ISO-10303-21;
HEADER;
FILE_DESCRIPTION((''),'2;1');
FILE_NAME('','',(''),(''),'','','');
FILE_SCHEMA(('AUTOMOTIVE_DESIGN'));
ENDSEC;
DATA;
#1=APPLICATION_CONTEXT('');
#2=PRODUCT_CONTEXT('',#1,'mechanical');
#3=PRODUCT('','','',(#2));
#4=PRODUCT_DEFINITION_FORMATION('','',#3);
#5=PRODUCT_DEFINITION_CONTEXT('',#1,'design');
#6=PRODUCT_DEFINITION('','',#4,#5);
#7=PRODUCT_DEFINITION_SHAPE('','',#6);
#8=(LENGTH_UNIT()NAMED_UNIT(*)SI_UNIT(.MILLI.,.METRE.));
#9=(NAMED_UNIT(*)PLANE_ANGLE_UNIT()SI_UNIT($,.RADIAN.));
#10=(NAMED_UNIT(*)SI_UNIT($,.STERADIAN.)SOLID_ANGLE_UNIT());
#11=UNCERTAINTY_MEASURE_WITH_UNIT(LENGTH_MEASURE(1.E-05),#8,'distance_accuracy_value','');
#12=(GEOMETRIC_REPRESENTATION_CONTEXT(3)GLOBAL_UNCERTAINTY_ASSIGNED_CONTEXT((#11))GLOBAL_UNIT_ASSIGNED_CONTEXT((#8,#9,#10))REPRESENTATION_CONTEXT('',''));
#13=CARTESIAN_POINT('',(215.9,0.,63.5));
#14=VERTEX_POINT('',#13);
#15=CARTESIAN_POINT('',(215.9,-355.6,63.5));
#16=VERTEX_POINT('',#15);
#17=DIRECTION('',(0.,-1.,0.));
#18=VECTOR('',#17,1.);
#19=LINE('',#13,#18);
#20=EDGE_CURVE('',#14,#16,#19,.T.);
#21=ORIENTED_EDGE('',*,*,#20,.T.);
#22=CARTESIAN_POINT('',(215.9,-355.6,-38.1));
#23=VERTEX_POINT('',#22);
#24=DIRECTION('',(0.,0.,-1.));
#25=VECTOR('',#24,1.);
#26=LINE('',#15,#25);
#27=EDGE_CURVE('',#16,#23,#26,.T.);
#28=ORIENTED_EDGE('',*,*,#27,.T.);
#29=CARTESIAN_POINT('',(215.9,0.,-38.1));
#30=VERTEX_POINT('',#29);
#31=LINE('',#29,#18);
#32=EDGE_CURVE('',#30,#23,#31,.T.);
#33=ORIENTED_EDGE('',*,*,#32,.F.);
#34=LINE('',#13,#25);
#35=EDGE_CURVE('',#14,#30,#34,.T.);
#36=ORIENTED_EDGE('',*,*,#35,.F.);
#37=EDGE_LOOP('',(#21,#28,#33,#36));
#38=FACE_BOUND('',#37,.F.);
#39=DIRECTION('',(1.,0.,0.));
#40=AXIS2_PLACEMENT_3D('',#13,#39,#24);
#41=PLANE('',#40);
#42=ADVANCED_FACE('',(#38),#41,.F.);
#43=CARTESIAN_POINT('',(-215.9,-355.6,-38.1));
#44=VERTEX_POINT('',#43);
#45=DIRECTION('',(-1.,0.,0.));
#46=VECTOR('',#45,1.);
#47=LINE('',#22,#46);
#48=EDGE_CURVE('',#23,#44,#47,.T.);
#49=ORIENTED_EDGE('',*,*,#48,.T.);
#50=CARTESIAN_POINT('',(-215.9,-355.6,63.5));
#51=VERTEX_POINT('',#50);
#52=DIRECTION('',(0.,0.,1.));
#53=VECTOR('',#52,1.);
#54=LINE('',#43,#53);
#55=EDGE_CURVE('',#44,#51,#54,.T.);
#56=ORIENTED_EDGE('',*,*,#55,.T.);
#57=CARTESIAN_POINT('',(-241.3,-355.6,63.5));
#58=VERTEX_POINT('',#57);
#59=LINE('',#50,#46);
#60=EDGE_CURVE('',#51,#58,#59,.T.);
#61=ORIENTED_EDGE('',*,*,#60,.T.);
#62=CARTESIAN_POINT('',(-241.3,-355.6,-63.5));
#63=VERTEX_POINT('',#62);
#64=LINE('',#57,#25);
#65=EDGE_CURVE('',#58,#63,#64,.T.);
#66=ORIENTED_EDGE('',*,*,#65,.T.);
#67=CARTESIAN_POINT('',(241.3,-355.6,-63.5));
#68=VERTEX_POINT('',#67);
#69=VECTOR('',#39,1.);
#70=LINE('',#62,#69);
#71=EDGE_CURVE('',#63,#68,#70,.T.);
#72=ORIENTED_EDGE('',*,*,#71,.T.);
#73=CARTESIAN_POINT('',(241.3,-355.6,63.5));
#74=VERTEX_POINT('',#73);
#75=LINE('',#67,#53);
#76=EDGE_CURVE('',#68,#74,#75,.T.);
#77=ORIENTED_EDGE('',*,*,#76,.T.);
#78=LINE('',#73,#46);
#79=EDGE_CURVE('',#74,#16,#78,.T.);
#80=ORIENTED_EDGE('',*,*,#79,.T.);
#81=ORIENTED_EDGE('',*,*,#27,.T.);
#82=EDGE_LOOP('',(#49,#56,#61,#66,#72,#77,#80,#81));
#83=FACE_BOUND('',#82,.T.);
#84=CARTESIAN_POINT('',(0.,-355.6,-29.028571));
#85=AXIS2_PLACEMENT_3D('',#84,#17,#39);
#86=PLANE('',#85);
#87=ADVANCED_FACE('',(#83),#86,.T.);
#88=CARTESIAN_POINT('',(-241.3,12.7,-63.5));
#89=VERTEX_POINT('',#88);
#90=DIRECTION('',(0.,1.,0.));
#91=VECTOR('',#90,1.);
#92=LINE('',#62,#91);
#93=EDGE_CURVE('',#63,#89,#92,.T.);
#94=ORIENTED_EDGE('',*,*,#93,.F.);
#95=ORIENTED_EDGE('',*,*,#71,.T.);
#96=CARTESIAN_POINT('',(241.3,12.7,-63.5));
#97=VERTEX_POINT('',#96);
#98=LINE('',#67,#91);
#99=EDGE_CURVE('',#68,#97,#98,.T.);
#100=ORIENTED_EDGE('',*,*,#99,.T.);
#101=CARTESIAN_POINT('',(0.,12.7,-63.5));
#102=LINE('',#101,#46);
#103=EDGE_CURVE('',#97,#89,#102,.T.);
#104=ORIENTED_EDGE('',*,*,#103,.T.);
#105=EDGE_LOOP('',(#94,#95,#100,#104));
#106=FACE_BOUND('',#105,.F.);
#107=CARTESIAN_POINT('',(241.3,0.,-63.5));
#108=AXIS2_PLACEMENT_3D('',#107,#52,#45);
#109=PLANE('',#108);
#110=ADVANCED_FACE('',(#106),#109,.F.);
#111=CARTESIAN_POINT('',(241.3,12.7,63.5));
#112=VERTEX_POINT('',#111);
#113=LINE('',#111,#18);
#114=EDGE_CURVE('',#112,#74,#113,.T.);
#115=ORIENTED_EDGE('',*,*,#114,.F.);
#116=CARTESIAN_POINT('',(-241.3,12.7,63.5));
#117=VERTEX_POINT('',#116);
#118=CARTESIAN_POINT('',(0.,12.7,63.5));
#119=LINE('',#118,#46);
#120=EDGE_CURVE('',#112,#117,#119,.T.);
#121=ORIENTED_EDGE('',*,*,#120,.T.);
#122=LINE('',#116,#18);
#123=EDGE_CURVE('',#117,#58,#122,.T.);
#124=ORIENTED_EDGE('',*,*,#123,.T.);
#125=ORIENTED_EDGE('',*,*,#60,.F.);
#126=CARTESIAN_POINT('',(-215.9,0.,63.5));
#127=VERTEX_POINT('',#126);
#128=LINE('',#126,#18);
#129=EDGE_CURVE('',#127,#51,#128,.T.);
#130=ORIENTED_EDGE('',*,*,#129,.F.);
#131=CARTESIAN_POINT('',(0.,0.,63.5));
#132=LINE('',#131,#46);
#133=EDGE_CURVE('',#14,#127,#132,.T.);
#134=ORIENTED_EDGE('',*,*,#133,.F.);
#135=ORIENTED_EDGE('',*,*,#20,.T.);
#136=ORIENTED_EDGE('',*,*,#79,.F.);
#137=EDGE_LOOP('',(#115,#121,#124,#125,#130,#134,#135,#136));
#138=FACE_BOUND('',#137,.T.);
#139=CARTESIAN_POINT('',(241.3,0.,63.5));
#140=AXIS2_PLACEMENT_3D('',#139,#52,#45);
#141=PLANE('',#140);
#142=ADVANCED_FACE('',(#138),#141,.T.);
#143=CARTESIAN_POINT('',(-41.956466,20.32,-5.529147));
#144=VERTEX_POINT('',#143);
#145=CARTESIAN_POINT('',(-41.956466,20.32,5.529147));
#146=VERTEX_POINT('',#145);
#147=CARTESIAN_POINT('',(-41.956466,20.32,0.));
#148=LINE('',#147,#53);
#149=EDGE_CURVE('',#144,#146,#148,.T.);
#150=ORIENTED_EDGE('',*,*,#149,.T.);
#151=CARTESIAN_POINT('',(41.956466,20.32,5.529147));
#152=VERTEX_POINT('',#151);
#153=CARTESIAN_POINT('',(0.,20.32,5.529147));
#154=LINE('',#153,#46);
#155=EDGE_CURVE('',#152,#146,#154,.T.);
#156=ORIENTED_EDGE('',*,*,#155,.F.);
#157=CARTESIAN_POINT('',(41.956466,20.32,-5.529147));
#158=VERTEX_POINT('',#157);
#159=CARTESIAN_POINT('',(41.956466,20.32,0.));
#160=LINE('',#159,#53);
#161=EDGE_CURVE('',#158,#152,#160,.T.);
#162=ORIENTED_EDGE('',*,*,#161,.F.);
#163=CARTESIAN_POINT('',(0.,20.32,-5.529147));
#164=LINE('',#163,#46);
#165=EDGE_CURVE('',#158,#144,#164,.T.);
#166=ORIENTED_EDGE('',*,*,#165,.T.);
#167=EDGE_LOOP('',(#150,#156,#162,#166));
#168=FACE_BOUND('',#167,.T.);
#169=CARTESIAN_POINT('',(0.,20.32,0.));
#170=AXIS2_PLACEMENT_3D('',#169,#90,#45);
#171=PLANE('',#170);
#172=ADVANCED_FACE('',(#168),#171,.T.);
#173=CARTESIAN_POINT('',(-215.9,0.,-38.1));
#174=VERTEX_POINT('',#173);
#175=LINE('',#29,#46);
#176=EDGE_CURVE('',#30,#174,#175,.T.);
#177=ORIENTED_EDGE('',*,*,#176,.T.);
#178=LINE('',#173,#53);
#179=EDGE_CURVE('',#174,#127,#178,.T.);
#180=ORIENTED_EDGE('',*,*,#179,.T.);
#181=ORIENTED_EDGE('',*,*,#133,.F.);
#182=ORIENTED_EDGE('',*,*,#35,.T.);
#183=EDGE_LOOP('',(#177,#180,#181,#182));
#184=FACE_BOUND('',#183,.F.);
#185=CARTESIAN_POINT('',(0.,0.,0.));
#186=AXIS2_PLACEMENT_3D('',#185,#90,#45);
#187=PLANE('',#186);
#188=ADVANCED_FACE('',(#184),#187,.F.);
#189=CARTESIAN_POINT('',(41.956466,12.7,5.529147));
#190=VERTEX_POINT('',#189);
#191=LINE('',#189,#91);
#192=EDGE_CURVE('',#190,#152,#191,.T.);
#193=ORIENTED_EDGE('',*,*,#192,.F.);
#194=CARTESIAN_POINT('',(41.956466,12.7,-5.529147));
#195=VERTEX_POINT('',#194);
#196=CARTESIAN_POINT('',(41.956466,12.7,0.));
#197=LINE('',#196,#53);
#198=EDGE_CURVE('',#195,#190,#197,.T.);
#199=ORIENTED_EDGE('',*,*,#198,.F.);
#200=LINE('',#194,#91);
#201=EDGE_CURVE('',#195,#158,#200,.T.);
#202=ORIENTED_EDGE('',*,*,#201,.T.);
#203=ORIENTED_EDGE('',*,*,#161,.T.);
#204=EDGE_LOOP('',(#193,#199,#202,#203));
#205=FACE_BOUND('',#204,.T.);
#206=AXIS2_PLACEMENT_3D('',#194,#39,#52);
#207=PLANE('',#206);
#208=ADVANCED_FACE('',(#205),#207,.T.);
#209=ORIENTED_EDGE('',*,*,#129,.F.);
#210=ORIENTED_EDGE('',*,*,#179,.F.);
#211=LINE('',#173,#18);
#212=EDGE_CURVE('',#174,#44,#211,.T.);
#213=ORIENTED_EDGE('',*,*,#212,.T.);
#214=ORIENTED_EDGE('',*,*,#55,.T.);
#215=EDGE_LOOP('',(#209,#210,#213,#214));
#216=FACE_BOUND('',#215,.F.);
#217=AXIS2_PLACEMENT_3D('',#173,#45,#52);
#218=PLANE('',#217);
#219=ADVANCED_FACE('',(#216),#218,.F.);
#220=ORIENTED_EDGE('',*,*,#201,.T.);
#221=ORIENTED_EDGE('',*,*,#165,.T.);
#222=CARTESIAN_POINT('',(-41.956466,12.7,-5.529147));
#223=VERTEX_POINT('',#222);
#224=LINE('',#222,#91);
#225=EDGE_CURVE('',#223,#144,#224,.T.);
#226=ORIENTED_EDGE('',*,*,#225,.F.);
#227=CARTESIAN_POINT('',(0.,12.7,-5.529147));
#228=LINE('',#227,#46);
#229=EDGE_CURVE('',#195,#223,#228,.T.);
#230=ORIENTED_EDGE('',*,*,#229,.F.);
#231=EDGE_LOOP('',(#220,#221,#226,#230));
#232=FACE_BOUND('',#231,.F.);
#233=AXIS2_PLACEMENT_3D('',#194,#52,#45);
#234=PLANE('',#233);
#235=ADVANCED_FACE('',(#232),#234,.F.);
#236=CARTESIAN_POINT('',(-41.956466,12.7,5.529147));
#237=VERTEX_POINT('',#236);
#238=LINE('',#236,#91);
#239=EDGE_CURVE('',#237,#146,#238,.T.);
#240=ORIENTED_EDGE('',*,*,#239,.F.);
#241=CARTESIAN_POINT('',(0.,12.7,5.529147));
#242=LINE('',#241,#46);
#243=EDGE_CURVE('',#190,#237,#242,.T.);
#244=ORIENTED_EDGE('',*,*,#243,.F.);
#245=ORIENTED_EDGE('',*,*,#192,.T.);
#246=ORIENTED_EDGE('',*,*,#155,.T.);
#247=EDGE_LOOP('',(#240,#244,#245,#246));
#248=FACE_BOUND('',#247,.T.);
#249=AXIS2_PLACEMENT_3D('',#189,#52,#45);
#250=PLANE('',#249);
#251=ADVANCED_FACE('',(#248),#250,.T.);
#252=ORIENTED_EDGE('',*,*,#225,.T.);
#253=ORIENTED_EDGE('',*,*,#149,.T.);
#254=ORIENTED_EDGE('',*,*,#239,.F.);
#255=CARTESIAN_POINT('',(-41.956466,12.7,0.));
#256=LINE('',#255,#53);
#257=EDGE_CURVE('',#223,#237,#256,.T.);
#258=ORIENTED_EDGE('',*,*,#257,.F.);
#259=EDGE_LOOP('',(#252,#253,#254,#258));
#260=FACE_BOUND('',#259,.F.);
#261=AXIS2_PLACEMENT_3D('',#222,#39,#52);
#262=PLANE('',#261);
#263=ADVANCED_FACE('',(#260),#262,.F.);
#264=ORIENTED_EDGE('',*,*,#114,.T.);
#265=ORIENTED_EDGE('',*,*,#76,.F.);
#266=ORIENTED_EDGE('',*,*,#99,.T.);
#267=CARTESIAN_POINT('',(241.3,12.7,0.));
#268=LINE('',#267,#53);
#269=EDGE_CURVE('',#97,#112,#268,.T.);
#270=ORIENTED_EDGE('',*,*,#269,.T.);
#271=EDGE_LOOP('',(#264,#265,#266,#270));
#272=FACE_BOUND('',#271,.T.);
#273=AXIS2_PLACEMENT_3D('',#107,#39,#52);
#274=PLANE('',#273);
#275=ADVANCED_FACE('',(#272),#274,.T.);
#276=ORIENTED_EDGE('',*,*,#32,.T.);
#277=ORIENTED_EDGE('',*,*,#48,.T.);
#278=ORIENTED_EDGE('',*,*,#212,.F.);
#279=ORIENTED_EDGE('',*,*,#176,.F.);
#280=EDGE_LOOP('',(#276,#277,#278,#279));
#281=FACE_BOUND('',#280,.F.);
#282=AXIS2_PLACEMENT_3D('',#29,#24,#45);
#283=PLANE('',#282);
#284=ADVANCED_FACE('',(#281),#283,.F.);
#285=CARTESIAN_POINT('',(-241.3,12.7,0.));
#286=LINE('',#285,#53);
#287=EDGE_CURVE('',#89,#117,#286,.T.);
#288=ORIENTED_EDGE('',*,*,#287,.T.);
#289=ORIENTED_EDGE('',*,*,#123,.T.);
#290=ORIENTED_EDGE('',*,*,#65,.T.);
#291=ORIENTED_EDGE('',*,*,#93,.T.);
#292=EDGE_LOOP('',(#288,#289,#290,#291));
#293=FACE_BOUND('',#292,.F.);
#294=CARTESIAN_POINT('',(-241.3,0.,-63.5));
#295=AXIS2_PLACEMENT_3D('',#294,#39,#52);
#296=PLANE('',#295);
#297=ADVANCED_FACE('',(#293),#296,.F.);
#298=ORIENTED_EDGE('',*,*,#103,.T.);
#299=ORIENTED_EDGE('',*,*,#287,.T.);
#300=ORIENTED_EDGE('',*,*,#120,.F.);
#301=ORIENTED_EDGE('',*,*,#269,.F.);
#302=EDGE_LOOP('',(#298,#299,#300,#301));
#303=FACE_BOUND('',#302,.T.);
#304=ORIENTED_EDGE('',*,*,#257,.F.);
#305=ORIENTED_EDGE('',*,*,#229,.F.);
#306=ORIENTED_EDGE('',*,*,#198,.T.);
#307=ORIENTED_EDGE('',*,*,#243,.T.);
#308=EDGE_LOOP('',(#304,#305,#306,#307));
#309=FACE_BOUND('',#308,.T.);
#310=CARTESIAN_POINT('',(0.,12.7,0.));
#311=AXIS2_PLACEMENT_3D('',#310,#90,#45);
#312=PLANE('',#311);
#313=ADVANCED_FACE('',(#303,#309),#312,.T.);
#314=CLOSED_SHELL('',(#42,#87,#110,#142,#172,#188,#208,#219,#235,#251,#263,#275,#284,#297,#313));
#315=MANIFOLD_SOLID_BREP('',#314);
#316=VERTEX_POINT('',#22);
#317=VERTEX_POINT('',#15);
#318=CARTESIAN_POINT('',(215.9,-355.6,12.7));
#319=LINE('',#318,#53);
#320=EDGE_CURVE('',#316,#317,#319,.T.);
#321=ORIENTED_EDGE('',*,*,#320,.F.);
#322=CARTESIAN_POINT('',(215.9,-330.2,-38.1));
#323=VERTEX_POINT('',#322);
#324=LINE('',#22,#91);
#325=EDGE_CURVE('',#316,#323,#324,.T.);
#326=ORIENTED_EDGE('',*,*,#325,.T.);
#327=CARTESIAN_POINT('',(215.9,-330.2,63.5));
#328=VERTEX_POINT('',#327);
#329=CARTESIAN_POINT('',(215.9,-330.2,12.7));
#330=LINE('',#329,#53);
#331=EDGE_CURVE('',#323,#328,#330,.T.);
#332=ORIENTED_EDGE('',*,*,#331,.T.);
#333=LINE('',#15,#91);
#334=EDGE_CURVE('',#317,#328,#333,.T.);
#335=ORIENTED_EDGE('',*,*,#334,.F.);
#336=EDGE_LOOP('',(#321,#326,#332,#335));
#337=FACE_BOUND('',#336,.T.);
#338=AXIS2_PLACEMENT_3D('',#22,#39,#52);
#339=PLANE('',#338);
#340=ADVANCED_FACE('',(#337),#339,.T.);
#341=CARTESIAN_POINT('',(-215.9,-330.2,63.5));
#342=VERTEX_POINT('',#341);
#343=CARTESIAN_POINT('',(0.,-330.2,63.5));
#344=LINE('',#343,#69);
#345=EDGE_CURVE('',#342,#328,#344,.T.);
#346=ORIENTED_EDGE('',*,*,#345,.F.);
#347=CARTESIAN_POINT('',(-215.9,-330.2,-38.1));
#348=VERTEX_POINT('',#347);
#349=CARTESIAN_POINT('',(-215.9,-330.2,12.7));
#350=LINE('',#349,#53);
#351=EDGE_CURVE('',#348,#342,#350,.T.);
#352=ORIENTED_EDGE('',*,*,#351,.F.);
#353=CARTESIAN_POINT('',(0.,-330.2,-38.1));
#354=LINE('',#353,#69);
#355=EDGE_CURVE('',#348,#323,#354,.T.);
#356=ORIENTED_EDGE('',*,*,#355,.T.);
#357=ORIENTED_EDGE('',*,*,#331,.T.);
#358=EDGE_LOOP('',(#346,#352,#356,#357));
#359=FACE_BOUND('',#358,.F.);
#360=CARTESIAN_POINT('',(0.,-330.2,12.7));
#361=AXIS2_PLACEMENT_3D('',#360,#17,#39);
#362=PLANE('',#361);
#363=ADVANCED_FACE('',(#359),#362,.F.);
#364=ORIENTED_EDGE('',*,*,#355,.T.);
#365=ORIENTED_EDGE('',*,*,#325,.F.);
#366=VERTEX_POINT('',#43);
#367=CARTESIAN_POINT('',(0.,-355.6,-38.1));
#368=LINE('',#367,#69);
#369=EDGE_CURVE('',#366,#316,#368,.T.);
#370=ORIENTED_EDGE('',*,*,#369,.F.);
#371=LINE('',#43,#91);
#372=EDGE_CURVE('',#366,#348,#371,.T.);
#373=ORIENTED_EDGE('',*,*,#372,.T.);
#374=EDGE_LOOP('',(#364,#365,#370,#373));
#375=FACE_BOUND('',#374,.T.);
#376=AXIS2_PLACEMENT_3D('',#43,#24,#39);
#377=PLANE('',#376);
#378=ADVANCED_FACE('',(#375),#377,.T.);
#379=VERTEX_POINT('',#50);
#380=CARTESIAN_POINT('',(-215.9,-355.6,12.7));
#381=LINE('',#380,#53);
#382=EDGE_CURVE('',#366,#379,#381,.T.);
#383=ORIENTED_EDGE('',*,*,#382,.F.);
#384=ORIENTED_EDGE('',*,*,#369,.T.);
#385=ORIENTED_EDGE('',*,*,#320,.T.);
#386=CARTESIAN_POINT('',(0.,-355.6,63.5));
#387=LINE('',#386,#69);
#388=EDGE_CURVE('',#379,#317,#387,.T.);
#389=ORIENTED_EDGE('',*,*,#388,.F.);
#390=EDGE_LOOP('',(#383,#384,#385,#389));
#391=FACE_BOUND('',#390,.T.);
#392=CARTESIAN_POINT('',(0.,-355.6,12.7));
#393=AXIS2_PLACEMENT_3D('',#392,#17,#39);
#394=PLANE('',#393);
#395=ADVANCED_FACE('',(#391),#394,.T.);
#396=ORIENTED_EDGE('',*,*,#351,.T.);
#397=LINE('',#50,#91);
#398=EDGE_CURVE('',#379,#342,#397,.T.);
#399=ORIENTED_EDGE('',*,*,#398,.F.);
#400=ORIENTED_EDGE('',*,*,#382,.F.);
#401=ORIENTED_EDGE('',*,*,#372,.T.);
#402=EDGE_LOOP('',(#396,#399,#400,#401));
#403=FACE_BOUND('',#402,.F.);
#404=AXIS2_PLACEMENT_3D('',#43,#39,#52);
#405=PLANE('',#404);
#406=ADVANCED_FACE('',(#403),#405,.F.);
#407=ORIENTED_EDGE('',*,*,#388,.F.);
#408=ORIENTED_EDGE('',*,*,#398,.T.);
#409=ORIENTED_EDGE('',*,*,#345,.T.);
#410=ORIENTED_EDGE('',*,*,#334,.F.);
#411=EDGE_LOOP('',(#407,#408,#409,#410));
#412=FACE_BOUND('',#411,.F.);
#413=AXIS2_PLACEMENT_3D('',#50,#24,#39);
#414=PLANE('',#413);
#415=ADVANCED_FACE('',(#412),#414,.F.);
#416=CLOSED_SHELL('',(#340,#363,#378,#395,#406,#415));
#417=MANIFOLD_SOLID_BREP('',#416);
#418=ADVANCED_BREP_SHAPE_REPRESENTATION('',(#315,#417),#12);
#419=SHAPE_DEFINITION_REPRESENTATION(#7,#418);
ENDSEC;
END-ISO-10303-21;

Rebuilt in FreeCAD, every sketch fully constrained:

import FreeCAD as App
import Part
import Sketcher
Q = App.Units.Quantity


def add_polygon(sketch, points):
    """Adds a closed chain of lines whose ends are joined by coincident constraints."""
    first, n = sketch.GeometryCount, len(points)
    for a, b in zip(points, points[1:] + points[:1]):
        sketch.addGeometry(Part.LineSegment(App.Vector(*a, 0), App.Vector(*b, 0)), False)
    for i in range(n):
        sketch.addConstraint(Sketcher.Constraint("Coincident", first + i, 2, first + (i + 1) % n, 1))

doc = App.newDocument("Part")
body = doc.addObject("PartDesign::Body", "Body")

# Sketch on XZ plane
sketch1 = body.newObject("Sketcher::SketchObject", "Sketch")
sketch1.AttachmentSupport = (doc.getObject("XZ_Plane"), [""])
sketch1.MapMode = "FlatFace"
add_polygon(sketch1, [(-241, -64), (241, -64), (241, 64), (216, 64), (216, -38), (-216, -38), (-216, 64), (-241, 64)])  # lines 0-7
sketch1.addConstraint([
    Sketcher.Constraint("Horizontal", 0),
    Sketcher.Constraint("Vertical", 1),
    Sketcher.Constraint("Horizontal", 2),
    Sketcher.Constraint("Vertical", 3),
    Sketcher.Constraint("Horizontal", 4),
    Sketcher.Constraint("Vertical", 5),
    Sketcher.Constraint("Horizontal", 6),
    Sketcher.Constraint("Vertical", 7),
    Sketcher.Constraint("Symmetric", 0, 2, 6, 2, -1, 1),
    Sketcher.Constraint("Symmetric", 2, 2, 5, 2, -2),
    Sketcher.Constraint("DistanceX", 0, 1, 0, 2, Q("19 in")),
    Sketcher.Constraint("DistanceX", 2, 2, 2, 1, Q("1 in")),
    Sketcher.Constraint("DistanceY", 1, 1, 1, 2, Q("5 in")),
    Sketcher.Constraint("DistanceY", 3, 2, 3, 1, Q("4 in")),
])
pad1 = body.newObject("PartDesign::Pad", "Pad")
pad1.Profile = sketch1
pad1.Length = Q("14 in")

# Sketch on XZ plane
sketch2 = body.newObject("Sketcher::SketchObject", "Sketch001")
sketch2.AttachmentSupport = (doc.getObject("XZ_Plane"), [""])
sketch2.MapMode = "FlatFace"
add_polygon(sketch2, [(241, 64), (241, -64), (-241, -64), (-241, 64)])  # lines 0-3
sketch2.addConstraint([
    Sketcher.Constraint("Vertical", 0),
    Sketcher.Constraint("Horizontal", 1),
    Sketcher.Constraint("Vertical", 2),
    Sketcher.Constraint("Horizontal", 3),
    Sketcher.Constraint("Symmetric", 0, 2, 2, 2, -1, 1),
    Sketcher.Constraint("DistanceX", 1, 2, 1, 1, Q("19 in")),
    Sketcher.Constraint("DistanceY", 0, 2, 0, 1, Q("5 in")),
])
pad2 = body.newObject("PartDesign::Pad", "Pad001")
pad2.Profile = sketch2
pad2.Length = Q("0.5 in")
pad2.Reversed = True

# Sketch on XZ plane
sketch3 = body.newObject("Sketcher::SketchObject", "Sketch002")
sketch3.AttachmentSupport = (doc.getObject("XZ_Plane"), [""])
sketch3.MapMode = "FlatFace"
sketch3.AttachmentOffset = App.Placement(App.Vector(0, 0, -0.5 * 25.4), App.Rotation())
add_polygon(sketch3, [(42, 6), (42, -6), (-42, -6), (-42, 6)])  # lines 0-3
sketch3.addConstraint([
    Sketcher.Constraint("Vertical", 0),
    Sketcher.Constraint("Horizontal", 1),
    Sketcher.Constraint("Vertical", 2),
    Sketcher.Constraint("Horizontal", 3),
    Sketcher.Constraint("Symmetric", 0, 2, 2, 2, -1, 1),
    Sketcher.Constraint("DistanceX", 1, 2, 1, 1, 83.912931),
    Sketcher.Constraint("DistanceY", 0, 2, 0, 1, 11.058293),
])
pad3 = body.newObject("PartDesign::Pad", "Pad002")
pad3.Profile = sketch3
pad3.Length = Q("0.3 in")
pad3.Reversed = True
body2 = doc.addObject("PartDesign::Body", "Body001")

# Sketch on XZ plane
sketch4 = body2.newObject("Sketcher::SketchObject", "Sketch003")
sketch4.AttachmentSupport = (doc.getObject("XZ_Plane001"), [""])
sketch4.MapMode = "FlatFace"
sketch4.AttachmentOffset = App.Placement(App.Vector(0, 0, 14 * 25.4), App.Rotation())
add_polygon(sketch4, [(-216, 64), (-216, -38), (216, -38), (216, 64)])  # lines 0-3
sketch4.addConstraint([
    Sketcher.Constraint("Vertical", 0),
    Sketcher.Constraint("Horizontal", 1),
    Sketcher.Constraint("Vertical", 2),
    Sketcher.Constraint("Horizontal", 3),
    Sketcher.Constraint("DistanceX", 1, 1, 1, 2, Q("17 in")),
    Sketcher.Constraint("DistanceY", 0, 2, 0, 1, Q("4 in")),
    Sketcher.Constraint("DistanceX", 0, 2, -1, 1, Q("8.5 in")),
    Sketcher.Constraint("DistanceY", 0, 2, -1, 1, Q("1.5 in")),
])
pad4 = body2.newObject("PartDesign::Pad", "Pad003")
pad4.Profile = sketch4
pad4.Length = Q("1 in")
pad4.Reversed = True

doc.recompute()
